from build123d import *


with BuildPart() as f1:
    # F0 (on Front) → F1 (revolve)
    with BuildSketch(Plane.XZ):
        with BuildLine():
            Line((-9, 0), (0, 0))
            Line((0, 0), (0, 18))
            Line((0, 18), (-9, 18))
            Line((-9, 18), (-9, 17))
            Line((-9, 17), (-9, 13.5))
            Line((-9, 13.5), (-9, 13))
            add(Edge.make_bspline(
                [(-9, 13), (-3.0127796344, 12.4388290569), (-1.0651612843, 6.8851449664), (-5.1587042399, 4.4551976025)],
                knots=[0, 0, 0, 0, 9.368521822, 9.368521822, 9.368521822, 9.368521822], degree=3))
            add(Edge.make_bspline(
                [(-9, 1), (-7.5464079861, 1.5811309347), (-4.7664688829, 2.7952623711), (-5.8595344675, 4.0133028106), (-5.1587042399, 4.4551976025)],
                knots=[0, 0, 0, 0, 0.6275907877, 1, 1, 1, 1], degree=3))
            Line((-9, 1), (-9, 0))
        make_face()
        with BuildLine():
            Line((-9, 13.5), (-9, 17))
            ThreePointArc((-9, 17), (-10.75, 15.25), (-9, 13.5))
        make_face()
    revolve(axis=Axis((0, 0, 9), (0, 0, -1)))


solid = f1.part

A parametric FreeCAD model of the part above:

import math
import FreeCAD as App
import Part
import Sketcher
from FreeCAD import Vector

doc = App.newDocument("Part")
body = doc.addObject("PartDesign::Body", "Body")

# Sketch on XZ plane
sketch1 = body.newObject("Sketcher::SketchObject", "Sketch")
sketch1.AttachmentSupport = (doc.getObject("XZ_Plane"), [""])
sketch1.MapMode = "FlatFace"
sketch1.addGeometry([
    Part.LineSegment(Vector(-9, 0, 0), Vector(0, 0, 0)),  # 0
    Part.LineSegment(Vector(0, 0, 0), Vector(0, 18, 0)),  # 1
    Part.LineSegment(Vector(0, 18, 0), Vector(-9, 18, 0)),  # 2
    Part.LineSegment(Vector(-9, 18, 0), Vector(-9, 17, 0)),  # 3
    Part.ArcOfCircle(Part.Circle(Vector(-9, 15.25, 0), Vector(0, 0, 1), 1.75), math.radians(90), math.radians(270)),  # 4
    Part.LineSegment(Vector(-9, 13.5, 0), Vector(-9, 13, 0)),  # 5
    Part.BSplineCurve([Vector(-9, 13, 0), Vector(-3.01278, 12.438829, 0), Vector(-1.065161, 6.885145, 0), Vector(-5.158704, 4.455198, 0)], [4, 4], [0, 9.368521822], False, 3, [1, 1, 1, 1], False),  # 6
    Part.BSplineCurve([Vector(-9, 1, 0), Vector(-7.546408, 1.581131, 0), Vector(-4.766469, 2.795262, 0), Vector(-5.859534, 4.013303, 0), Vector(-5.158704, 4.455198, 0)], [4, 1, 4], [0, 0.627590788, 1], False, 3, [1, 1, 1, 1, 1], False),  # 7
    Part.LineSegment(Vector(-9, 1, 0), Vector(-9, 0, 0)),  # 8
], False)
sketch1.addConstraint([
    Sketcher.Constraint("Block", 6),
    Sketcher.Constraint("Block", 7),
    Sketcher.Constraint("Coincident", 0, 2, 1, 1),
    Sketcher.Constraint("Coincident", 1, 2, 2, 1),
    Sketcher.Constraint("Coincident", 2, 2, 3, 1),
    Sketcher.Constraint("Coincident", 3, 2, 4, 1),
    Sketcher.Constraint("Coincident", 4, 2, 5, 1),
    Sketcher.Constraint("Coincident", 5, 2, 6, 1),
    Sketcher.Constraint("Coincident", 7, 1, 8, 1),
    Sketcher.Constraint("Coincident", 8, 2, 0, 1),
    Sketcher.Constraint("Horizontal", 0),
    Sketcher.Constraint("Vertical", 1),
    Sketcher.Constraint("Horizontal", 2),
    Sketcher.Constraint("Vertical", 3),
    Sketcher.Constraint("Vertical", 5),
    Sketcher.Constraint("Vertical", 8),
    Sketcher.Constraint("Coincident", 0, 2, -1, 1),
    Sketcher.Constraint("Vertical", 4, 3, 2, 2),
    Sketcher.Constraint("Vertical", 3, 2, 4, 2),
    Sketcher.Constraint("Equal", 3, 8),
    Sketcher.Constraint("DistanceY", 1, 1, 1, 2, 18.0),
    Sketcher.Constraint("Radius", 4, 1.75),
])
revolution = body.newObject("PartDesign::Revolution", "Revolution")
revolution.Profile = sketch1
revolution.ReferenceAxis = (sketch1, ["V_Axis"])
revolution.Angle = 360

doc.recompute()
